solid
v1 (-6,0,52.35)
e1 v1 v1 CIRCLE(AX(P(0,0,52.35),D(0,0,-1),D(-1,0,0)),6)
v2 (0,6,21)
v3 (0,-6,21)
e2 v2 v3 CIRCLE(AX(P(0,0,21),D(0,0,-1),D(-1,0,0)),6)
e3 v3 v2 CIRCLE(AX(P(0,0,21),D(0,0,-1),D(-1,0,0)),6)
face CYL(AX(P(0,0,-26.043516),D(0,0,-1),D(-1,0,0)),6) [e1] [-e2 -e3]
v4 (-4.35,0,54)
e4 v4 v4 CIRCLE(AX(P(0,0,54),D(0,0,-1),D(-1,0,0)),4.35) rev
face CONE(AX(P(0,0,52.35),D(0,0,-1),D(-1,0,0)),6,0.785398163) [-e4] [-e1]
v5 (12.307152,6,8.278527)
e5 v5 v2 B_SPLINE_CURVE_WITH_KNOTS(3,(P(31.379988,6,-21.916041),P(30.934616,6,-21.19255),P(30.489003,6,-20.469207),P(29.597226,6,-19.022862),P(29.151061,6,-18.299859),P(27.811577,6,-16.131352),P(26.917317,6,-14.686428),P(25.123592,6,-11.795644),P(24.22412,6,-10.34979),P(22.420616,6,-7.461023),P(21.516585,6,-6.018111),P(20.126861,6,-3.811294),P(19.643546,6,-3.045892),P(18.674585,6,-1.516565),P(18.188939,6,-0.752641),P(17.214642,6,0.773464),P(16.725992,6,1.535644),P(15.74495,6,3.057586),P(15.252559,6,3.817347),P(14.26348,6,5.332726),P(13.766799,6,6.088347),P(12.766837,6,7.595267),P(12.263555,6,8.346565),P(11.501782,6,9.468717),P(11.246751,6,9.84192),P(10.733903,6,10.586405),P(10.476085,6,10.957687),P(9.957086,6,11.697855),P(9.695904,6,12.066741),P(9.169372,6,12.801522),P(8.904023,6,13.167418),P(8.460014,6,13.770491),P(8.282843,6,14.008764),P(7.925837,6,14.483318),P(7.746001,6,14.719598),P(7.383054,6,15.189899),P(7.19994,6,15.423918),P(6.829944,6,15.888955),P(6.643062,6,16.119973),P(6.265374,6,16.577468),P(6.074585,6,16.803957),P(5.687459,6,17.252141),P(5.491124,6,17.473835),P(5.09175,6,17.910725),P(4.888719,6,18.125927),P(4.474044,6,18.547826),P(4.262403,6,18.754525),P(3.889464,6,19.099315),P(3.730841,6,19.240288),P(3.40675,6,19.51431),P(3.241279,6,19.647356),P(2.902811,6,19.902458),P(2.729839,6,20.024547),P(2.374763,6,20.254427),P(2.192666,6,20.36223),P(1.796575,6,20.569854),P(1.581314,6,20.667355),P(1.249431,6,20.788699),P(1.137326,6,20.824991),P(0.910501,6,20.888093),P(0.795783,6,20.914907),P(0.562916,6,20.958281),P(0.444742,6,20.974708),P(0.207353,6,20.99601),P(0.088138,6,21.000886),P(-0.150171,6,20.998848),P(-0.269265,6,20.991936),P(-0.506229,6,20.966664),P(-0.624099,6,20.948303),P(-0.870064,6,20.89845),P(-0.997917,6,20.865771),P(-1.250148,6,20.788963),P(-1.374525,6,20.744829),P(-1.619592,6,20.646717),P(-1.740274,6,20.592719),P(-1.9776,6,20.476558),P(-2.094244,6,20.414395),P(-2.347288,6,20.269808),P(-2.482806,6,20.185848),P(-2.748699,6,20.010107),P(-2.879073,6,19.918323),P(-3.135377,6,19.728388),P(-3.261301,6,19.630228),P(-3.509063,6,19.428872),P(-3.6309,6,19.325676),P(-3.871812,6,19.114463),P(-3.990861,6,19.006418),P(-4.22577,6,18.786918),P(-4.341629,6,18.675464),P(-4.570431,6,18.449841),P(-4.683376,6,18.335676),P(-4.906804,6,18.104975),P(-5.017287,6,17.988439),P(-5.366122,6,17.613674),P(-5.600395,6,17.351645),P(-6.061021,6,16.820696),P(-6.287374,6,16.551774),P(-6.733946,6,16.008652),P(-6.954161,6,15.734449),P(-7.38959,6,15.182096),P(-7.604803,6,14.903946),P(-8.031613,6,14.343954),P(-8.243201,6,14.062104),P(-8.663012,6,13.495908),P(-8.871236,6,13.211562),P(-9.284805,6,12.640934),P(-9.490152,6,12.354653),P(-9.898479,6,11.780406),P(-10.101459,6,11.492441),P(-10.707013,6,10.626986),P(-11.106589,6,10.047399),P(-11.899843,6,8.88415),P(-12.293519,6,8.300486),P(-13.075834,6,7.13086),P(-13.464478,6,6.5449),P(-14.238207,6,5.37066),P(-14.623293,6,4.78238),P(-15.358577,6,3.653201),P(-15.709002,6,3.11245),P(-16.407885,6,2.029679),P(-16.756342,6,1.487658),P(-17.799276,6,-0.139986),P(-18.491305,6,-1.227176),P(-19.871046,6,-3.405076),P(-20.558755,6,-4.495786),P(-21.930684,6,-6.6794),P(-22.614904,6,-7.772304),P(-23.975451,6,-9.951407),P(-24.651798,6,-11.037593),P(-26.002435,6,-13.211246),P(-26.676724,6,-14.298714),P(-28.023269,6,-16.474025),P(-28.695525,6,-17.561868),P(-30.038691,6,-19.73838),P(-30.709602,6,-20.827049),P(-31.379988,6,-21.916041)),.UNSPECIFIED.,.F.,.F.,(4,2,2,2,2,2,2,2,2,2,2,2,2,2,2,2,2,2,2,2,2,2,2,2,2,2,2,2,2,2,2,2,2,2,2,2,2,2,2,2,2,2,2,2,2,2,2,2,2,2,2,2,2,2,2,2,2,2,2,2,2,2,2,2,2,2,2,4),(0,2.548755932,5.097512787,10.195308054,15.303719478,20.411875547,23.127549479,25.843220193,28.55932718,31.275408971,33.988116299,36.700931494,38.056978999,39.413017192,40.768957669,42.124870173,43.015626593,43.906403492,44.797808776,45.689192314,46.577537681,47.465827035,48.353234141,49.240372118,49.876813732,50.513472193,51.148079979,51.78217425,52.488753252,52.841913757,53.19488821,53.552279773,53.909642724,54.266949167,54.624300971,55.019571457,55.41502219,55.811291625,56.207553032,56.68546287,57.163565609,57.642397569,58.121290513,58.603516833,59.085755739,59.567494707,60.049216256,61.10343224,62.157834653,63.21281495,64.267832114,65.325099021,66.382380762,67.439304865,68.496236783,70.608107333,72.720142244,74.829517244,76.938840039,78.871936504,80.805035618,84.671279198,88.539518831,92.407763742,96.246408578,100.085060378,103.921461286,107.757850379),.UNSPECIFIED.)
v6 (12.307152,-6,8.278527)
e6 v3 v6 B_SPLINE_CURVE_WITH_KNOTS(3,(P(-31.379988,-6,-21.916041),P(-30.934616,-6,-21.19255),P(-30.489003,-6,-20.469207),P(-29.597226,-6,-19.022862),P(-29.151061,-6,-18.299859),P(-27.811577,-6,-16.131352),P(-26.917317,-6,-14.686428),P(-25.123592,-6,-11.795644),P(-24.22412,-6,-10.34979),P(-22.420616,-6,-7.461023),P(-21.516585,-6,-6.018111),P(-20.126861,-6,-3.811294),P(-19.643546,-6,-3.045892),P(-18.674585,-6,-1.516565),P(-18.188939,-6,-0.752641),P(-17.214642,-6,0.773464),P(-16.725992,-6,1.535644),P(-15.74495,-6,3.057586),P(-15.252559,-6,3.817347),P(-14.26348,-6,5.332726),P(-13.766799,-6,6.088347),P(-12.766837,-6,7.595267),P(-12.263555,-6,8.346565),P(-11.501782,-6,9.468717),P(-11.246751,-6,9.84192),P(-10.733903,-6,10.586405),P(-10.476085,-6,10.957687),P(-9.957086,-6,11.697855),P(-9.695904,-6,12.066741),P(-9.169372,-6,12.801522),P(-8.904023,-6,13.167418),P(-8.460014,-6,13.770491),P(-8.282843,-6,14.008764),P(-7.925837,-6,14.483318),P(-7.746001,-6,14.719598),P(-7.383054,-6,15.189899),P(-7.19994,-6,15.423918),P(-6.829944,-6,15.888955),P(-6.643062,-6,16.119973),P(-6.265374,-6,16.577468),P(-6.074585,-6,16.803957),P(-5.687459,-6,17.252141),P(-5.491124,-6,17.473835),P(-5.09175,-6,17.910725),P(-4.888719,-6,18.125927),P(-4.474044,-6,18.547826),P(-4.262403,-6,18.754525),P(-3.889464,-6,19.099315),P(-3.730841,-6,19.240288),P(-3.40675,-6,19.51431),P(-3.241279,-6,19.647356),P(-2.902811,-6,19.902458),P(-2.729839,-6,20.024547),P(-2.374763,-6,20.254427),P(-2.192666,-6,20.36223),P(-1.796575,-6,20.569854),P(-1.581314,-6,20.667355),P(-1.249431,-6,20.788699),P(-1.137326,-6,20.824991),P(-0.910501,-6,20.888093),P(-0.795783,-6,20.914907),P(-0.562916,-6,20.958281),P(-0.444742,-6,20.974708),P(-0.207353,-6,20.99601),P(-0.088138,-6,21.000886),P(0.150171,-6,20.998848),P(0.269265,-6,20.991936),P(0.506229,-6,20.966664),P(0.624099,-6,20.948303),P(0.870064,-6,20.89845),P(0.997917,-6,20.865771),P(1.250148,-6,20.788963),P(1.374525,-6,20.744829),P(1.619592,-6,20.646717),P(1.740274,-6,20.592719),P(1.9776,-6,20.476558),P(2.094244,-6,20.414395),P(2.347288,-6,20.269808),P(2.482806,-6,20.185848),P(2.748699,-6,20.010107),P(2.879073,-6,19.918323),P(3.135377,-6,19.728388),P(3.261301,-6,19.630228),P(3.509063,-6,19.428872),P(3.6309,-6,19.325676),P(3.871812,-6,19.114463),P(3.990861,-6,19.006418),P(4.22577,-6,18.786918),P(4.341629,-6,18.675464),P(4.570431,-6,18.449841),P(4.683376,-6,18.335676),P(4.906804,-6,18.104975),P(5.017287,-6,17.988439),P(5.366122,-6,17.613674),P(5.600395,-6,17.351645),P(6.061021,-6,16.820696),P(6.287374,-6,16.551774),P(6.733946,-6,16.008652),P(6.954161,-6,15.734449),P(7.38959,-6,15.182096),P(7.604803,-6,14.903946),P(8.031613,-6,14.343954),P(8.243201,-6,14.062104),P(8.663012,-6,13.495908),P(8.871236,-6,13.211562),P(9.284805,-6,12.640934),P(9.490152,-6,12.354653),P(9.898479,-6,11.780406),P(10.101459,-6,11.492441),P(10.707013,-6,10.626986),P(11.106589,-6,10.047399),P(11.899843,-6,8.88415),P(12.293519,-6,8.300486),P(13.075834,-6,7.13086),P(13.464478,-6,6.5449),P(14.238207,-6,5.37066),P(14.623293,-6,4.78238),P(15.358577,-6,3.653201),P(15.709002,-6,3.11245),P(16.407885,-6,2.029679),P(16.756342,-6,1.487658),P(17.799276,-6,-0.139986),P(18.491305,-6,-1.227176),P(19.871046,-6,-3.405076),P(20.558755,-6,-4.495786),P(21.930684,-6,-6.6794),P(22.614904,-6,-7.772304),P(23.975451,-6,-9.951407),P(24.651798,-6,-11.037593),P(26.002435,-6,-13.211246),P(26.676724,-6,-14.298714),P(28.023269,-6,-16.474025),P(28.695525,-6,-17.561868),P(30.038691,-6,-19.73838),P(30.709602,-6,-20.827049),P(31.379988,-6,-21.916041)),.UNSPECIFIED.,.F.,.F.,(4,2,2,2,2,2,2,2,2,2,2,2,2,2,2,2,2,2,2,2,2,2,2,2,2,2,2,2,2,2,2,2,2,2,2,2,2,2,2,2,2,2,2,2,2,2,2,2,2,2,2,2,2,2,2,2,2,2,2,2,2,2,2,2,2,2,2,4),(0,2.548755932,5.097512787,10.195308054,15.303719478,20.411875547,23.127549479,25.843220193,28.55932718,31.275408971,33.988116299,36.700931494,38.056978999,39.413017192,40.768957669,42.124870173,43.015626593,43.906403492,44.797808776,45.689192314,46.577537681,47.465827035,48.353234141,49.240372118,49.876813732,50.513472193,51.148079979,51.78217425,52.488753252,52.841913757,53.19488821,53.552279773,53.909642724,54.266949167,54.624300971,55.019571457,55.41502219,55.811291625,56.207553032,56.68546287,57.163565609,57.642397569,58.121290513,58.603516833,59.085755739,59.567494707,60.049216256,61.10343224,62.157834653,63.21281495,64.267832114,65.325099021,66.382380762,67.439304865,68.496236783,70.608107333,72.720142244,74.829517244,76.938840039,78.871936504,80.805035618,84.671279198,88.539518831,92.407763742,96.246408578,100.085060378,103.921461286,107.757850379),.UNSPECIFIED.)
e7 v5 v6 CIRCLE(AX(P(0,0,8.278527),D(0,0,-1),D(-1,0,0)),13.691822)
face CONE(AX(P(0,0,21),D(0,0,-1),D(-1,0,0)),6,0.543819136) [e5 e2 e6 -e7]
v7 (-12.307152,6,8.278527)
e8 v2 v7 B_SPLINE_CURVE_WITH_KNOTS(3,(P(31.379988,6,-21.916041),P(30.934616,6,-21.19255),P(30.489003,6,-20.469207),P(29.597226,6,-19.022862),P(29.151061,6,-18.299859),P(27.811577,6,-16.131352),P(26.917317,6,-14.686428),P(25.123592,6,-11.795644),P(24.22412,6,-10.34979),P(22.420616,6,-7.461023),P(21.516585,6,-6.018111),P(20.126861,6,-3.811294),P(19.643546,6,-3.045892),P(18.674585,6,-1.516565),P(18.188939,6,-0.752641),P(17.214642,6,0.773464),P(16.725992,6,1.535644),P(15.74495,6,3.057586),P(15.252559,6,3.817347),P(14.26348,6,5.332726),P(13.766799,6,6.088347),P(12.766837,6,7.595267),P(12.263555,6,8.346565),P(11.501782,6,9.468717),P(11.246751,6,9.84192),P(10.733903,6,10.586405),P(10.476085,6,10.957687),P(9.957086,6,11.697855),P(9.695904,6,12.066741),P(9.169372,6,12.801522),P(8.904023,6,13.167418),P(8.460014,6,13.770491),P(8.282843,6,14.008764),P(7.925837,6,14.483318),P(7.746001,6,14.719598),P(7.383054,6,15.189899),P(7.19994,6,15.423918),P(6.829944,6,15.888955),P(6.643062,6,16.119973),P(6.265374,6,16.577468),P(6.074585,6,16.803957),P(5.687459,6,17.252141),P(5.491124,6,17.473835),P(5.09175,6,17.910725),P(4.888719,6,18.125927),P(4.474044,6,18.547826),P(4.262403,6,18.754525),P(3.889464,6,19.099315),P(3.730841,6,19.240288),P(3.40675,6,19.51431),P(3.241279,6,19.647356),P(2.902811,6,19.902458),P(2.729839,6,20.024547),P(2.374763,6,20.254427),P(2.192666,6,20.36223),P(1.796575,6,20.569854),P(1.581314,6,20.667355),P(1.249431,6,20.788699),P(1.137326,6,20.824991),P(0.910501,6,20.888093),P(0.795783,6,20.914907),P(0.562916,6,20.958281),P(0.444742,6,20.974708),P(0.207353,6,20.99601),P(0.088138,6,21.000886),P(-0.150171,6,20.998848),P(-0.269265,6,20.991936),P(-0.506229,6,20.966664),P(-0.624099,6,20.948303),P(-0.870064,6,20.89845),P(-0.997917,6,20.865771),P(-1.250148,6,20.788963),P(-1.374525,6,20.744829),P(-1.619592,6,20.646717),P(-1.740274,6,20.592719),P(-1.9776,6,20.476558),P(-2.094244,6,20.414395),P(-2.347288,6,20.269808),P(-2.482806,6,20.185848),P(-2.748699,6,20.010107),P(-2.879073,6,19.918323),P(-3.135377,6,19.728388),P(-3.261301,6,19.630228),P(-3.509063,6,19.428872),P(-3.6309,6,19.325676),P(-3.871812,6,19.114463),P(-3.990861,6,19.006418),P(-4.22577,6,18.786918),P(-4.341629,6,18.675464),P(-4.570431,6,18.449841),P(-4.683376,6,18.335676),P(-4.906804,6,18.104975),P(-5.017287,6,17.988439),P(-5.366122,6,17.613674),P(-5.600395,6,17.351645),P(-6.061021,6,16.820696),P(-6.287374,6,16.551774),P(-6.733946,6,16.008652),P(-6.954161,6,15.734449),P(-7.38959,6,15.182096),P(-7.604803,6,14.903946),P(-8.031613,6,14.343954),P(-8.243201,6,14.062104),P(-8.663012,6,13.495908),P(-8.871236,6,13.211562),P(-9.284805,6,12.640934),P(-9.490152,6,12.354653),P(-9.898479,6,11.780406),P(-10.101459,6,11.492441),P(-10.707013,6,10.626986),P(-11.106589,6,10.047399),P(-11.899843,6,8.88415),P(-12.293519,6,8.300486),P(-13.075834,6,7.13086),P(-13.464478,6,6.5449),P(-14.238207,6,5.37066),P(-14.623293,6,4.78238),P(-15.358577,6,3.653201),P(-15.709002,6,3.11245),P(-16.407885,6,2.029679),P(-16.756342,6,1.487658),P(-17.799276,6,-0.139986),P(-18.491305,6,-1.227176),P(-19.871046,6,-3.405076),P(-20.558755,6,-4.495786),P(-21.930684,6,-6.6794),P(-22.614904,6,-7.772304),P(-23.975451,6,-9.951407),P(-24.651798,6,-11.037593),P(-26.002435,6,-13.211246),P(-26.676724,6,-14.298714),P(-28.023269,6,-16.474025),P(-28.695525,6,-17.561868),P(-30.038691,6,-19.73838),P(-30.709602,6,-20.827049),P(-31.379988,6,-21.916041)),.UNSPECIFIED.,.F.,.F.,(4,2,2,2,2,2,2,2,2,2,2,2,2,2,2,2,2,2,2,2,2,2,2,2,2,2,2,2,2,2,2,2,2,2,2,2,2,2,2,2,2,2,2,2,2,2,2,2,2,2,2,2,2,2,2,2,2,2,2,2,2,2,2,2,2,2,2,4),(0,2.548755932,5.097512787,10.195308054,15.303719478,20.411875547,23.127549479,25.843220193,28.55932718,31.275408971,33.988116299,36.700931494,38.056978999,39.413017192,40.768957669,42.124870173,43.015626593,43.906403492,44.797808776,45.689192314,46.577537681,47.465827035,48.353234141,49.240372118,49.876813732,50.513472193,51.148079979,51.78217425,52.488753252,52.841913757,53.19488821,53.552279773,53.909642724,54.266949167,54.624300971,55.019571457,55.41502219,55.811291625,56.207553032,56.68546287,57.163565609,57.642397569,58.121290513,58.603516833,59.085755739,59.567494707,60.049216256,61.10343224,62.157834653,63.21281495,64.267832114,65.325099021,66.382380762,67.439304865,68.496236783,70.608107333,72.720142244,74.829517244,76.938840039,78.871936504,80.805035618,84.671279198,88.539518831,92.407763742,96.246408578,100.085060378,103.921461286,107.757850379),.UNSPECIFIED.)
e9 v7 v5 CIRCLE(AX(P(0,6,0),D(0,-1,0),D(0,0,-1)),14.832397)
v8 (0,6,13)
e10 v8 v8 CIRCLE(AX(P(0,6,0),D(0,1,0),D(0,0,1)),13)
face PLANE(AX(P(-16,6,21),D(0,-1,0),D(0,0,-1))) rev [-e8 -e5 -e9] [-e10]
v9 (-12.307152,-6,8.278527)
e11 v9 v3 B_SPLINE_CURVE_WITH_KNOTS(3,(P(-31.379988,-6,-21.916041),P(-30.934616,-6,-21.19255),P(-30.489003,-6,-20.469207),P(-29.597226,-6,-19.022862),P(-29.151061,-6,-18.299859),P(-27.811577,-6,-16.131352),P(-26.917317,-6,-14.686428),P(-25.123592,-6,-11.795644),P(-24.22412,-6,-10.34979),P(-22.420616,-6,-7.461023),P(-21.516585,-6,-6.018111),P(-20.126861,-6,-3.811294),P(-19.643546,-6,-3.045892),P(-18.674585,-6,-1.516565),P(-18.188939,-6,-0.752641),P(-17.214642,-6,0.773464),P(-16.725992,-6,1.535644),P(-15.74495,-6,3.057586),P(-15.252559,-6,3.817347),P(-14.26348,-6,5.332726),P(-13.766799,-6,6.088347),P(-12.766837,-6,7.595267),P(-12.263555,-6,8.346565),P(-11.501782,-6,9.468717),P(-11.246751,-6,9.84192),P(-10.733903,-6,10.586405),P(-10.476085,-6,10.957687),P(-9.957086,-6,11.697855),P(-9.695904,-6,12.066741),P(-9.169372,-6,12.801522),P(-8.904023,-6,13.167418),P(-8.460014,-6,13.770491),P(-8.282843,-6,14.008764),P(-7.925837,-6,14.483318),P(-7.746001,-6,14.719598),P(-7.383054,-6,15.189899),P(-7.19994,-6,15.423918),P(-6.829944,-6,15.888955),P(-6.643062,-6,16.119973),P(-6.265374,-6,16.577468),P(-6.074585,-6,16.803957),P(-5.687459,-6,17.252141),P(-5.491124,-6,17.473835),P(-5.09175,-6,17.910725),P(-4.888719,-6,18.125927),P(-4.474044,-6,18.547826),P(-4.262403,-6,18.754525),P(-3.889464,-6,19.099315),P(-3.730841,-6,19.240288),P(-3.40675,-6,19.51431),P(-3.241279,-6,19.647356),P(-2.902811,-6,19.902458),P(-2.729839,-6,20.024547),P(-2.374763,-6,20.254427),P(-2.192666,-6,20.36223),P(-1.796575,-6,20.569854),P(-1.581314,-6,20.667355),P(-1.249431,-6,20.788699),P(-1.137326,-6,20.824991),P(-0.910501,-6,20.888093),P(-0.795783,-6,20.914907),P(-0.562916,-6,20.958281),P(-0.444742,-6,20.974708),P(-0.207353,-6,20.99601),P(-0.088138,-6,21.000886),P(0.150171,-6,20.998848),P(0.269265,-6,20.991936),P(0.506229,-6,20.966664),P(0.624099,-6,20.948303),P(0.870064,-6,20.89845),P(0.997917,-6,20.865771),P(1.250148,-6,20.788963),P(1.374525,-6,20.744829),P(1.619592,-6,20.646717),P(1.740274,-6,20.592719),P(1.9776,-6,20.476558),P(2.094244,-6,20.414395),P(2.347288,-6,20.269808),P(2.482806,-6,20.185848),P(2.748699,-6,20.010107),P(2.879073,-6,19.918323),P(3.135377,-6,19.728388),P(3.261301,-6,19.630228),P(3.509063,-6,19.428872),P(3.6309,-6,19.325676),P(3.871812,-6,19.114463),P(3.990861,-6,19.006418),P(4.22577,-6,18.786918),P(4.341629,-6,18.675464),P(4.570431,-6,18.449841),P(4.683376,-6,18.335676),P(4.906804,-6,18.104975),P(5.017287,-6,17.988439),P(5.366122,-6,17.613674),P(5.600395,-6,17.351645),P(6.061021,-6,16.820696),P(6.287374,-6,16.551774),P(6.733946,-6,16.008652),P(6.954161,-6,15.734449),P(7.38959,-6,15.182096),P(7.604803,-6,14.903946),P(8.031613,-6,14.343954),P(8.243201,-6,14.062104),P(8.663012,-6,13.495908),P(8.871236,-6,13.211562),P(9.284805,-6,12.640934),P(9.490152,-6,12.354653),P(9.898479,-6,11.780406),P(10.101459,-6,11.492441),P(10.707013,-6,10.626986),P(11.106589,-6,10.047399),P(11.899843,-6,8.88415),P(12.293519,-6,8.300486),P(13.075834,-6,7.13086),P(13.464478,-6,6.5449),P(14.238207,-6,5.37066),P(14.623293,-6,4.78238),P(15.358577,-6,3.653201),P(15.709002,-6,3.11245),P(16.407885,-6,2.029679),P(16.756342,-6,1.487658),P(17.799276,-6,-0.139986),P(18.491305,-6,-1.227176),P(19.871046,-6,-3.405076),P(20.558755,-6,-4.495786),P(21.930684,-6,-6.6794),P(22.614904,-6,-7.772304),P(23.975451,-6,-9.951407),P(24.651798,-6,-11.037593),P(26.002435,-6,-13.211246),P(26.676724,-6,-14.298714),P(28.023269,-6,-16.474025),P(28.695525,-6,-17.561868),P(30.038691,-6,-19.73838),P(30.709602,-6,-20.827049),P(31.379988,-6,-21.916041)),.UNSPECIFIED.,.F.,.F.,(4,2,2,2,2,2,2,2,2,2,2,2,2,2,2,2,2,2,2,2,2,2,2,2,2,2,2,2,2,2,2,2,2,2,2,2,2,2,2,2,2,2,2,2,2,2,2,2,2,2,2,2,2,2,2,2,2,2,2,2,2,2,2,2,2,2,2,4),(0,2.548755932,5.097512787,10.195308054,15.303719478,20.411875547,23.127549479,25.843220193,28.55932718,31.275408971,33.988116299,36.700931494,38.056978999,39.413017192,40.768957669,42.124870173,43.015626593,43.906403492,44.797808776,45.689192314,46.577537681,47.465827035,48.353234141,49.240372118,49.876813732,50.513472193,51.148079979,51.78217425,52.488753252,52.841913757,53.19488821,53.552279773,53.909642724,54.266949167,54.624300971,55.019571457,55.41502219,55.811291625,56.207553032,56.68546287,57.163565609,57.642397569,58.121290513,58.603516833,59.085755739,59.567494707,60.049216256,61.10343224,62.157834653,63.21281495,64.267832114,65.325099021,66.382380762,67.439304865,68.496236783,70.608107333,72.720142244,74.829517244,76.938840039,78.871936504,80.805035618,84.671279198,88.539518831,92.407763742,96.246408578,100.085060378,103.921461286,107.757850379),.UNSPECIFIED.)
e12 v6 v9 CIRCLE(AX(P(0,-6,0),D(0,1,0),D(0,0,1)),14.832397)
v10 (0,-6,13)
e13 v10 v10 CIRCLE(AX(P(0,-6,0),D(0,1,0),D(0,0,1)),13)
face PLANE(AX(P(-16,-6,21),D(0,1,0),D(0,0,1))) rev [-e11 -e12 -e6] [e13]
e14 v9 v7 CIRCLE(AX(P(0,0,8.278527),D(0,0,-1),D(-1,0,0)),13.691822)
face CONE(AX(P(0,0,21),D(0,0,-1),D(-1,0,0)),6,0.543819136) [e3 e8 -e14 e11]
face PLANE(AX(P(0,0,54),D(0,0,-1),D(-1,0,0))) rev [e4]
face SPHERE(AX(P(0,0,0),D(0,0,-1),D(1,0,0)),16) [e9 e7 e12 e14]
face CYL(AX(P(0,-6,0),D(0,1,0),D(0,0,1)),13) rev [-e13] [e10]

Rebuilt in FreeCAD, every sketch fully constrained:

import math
import FreeCAD as App
import Part
import Sketcher


def edges_at(feature, points):
    """Names of the edges that pass closest to the given points."""
    edges = feature.Shape.Edges
    near = lambda p: min(range(len(edges)), key=lambda i: edges[i].distToShape(Part.Vertex(*p))[0])
    return sorted({f"Edge{near(p) + 1}" for p in points})

doc = App.newDocument("Part")
body = doc.addObject("PartDesign::Body", "Body")

# Sketch on XZ plane
sketch1 = body.newObject("Sketcher::SketchObject", "Sketch")
sketch1.AttachmentSupport = (doc.getObject("XZ_Plane"), [""])
sketch1.MapMode = "FlatFace"
sketch1.addGeometry(Part.LineSegment(App.Vector(0, -16, 0), App.Vector(0, 54, 0)), False)
sketch1.addGeometry(Part.LineSegment(App.Vector(0, 54, 0), App.Vector(6, 54, 0)), False)
sketch1.addGeometry(Part.LineSegment(App.Vector(6, 54, 0), App.Vector(6, 21, 0)), False)
sketch1.addGeometry(Part.LineSegment(App.Vector(6, 21, 0), App.Vector(13.691822, 8.278527, 0)), False)
sketch1.addGeometry(Part.ArcOfCircle(Part.Circle(App.Vector(0, 0, 0), App.Vector(0, 0, 1), 16), math.radians(-90), math.radians(31.158541)), False)
sketch1.addConstraint(Sketcher.Constraint("Coincident", 0, 2, 1, 1))
sketch1.addConstraint(Sketcher.Constraint("Coincident", 1, 2, 2, 1))
sketch1.addConstraint(Sketcher.Constraint("Coincident", 2, 2, 3, 1))
sketch1.addConstraint(Sketcher.Constraint("Tangent", 3, 2, 4, 2))
sketch1.addConstraint(Sketcher.Constraint("Coincident", 4, 1, 0, 1))
sketch1.addConstraint(Sketcher.Constraint("Vertical", 0))
sketch1.addConstraint(Sketcher.Constraint("Horizontal", 1))
sketch1.addConstraint(Sketcher.Constraint("Vertical", 2))
sketch1.addConstraint(Sketcher.Constraint("Coincident", 4, 3, -1, 1))
sketch1.addConstraint(Sketcher.Constraint("PointOnObject", 0, 2, -2))
sketch1.addConstraint(Sketcher.Constraint("Radius", 4, 16.0))
sketch1.addConstraint(Sketcher.Constraint("DistanceX", 1, 1, 1, 2, 6.0))
sketch1.addConstraint(Sketcher.Constraint("DistanceY", 0, 1, 0, 2, 70.0))
sketch1.addConstraint(Sketcher.Constraint("DistanceY", 2, 2, 2, 1, 33.0))
revolution = body.newObject("PartDesign::Revolution", "Revolution")
revolution.Profile = sketch1
revolution.ReferenceAxis = (sketch1, ["V_Axis"])
revolution.Angle = 360

# Sketch on YZ plane
sketch2 = body.newObject("Sketcher::SketchObject", "Sketch001")
sketch2.AttachmentSupport = (doc.getObject("YZ_Plane"), [""])
sketch2.MapMode = "FlatFace"
sketch2.addGeometry(Part.LineSegment(App.Vector(6, 21, 0), App.Vector(6, -14.832397, 0)), False)
sketch2.addGeometry(Part.ArcOfCircle(Part.Circle(App.Vector(0, 0, 0), App.Vector(0, 0, 1), 16), math.radians(-67.975687), math.radians(31.158541)), False)
sketch2.addGeometry(Part.LineSegment(App.Vector(13.691822, 8.278527, 0), App.Vector(6, 21, 0)), False)
sketch2.addGeometry(Part.LineSegment(App.Vector(-6, -14.832397, 0), App.Vector(-6, 21, 0)), False)
sketch2.addGeometry(Part.LineSegment(App.Vector(-6, 21, 0), App.Vector(-13.691822, 8.278527, 0)), False)
sketch2.addGeometry(Part.ArcOfCircle(Part.Circle(App.Vector(0, 0, 0), App.Vector(0, 0, 1), 16), math.radians(148.841459), math.radians(247.975687)), False)
sketch2.addConstraint(Sketcher.Constraint("Coincident", 0, 2, 1, 1))
sketch2.addConstraint(Sketcher.Constraint("Tangent", 1, 2, 2, 1))
sketch2.addConstraint(Sketcher.Constraint("Coincident", 2, 2, 0, 1))
sketch2.addConstraint(Sketcher.Constraint("Coincident", 3, 2, 4, 1))
sketch2.addConstraint(Sketcher.Constraint("Tangent", 4, 2, 5, 1))
sketch2.addConstraint(Sketcher.Constraint("Coincident", 5, 2, 3, 1))
sketch2.addConstraint(Sketcher.Constraint("Vertical", 0))
sketch2.addConstraint(Sketcher.Constraint("Vertical", 3))
sketch2.addConstraint(Sketcher.Constraint("Coincident", 1, 3, -1, 1))
sketch2.addConstraint(Sketcher.Constraint("Coincident", 5, 3, -1, 1))
sketch2.addConstraint(Sketcher.Constraint("Equal", 1, 5))
sketch2.addConstraint(Sketcher.Constraint("Symmetric", 2, 2, 3, 2, -2))
sketch2.addConstraint(Sketcher.Constraint("Radius", 1, 16.0))
sketch2.addConstraint(Sketcher.Constraint("DistanceX", -1, 1, 0, 2, 6.0))
sketch2.addConstraint(Sketcher.Constraint("DistanceY", -1, 1, 2, 2, 21.0))
pocket1 = body.newObject("PartDesign::Pocket", "Pocket")
pocket1.Profile = sketch2
pocket1.Type = "ThroughAll"
pocket1.Midplane = True

# Sketch on XZ plane
sketch3 = body.newObject("Sketcher::SketchObject", "Sketch002")
sketch3.AttachmentSupport = (doc.getObject("XZ_Plane"), [""])
sketch3.MapMode = "FlatFace"
sketch3.addGeometry(Part.Circle(App.Vector(0, 0, 0), App.Vector(0, 0, 1), 13), False)
sketch3.addConstraint(Sketcher.Constraint("Coincident", 0, 3, -1, 1))
sketch3.addConstraint(Sketcher.Constraint("Diameter", 0, 26.0))
pocket2 = body.newObject("PartDesign::Pocket", "Pocket001")
pocket2.Profile = sketch3
pocket2.Type = "ThroughAll"
pocket2.Midplane = True
doc.recompute()

chamfer = body.newObject("PartDesign::Chamfer", "Chamfer")
chamfer.Base = (pocket2, edges_at(pocket2, [(-6, 0, 54)]))
chamfer.Size = 1.65

doc.recompute()
